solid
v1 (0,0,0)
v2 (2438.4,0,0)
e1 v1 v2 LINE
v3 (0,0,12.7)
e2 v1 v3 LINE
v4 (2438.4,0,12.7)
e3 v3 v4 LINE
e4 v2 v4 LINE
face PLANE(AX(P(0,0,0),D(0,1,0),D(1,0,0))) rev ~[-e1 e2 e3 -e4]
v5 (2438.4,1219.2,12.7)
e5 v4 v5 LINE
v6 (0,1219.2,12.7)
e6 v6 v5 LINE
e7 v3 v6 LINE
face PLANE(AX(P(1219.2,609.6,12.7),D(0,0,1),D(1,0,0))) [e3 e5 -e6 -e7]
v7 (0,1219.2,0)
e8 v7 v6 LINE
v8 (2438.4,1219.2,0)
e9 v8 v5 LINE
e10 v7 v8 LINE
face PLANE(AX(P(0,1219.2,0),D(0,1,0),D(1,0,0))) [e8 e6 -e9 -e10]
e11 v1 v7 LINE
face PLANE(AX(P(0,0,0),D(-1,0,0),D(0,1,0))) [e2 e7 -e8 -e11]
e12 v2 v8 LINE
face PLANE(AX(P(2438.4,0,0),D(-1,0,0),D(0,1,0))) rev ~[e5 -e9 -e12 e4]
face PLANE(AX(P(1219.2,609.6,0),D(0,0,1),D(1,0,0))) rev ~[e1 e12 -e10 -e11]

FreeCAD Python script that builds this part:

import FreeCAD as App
import Part
import Sketcher
from FreeCAD import Vector
Q = App.Units.Quantity


def add_polygon(sketch, points):
    """Adds a closed chain of lines whose ends are joined by coincident constraints."""
    first, n = sketch.GeometryCount, len(points)
    for a, b in zip(points, points[1:] + points[:1]):
        sketch.addGeometry(Part.LineSegment(App.Vector(*a, 0), App.Vector(*b, 0)), False)
    for i in range(n):
        sketch.addConstraint(Sketcher.Constraint("Coincident", first + i, 2, first + (i + 1) % n, 1))

doc = App.newDocument("Part")
params = doc.addObject("Spreadsheet::Sheet", "Params")
for row, (alias, value) in enumerate([
    ("sketch1_width", "96 in"),
    ("sketch1_height", "48 in"),
    ("pad1_length", "0.5 in"),
], start=1):
    params.set(f"A{row}", alias)
    params.set(f"B{row}", "=" + value)
    params.setAlias(f"B{row}", alias)

body = doc.addObject("PartDesign::Body", "Body")

sketch1 = body.newObject("Sketcher::SketchObject", "Sketch")
sketch1.AttachmentSupport = (doc.getObject("XY_Plane"), [""])
sketch1.MapMode = "FlatFace"
add_polygon(sketch1, [(0, 1219), (0, 0), (2438, 0), (2438, 1219)])
sketch1.addConstraint(Sketcher.Constraint("Vertical", 0))
sketch1.addConstraint(Sketcher.Constraint("Horizontal", 1))
sketch1.addConstraint(Sketcher.Constraint("Vertical", 2))
sketch1.addConstraint(Sketcher.Constraint("Horizontal", 3))
sketch1.addConstraint(Sketcher.Constraint("Coincident", 0, 2, -1, 1))
sketch1.addConstraint(Sketcher.Constraint("DistanceX", 1, 1, 1, 2, Q("96 in")))
sketch1.addConstraint(Sketcher.Constraint("DistanceY", 0, 2, 0, 1, Q("48 in")))
sketch1.setExpression("Constraints[9]", "Params.sketch1_width")
sketch1.setExpression("Constraints[10]", "Params.sketch1_height")
pad1 = body.newObject("PartDesign::Pad", "Pad")
pad1.Profile = sketch1
pad1.setExpression("Length", "Params.pad1_length")

doc.recompute()
